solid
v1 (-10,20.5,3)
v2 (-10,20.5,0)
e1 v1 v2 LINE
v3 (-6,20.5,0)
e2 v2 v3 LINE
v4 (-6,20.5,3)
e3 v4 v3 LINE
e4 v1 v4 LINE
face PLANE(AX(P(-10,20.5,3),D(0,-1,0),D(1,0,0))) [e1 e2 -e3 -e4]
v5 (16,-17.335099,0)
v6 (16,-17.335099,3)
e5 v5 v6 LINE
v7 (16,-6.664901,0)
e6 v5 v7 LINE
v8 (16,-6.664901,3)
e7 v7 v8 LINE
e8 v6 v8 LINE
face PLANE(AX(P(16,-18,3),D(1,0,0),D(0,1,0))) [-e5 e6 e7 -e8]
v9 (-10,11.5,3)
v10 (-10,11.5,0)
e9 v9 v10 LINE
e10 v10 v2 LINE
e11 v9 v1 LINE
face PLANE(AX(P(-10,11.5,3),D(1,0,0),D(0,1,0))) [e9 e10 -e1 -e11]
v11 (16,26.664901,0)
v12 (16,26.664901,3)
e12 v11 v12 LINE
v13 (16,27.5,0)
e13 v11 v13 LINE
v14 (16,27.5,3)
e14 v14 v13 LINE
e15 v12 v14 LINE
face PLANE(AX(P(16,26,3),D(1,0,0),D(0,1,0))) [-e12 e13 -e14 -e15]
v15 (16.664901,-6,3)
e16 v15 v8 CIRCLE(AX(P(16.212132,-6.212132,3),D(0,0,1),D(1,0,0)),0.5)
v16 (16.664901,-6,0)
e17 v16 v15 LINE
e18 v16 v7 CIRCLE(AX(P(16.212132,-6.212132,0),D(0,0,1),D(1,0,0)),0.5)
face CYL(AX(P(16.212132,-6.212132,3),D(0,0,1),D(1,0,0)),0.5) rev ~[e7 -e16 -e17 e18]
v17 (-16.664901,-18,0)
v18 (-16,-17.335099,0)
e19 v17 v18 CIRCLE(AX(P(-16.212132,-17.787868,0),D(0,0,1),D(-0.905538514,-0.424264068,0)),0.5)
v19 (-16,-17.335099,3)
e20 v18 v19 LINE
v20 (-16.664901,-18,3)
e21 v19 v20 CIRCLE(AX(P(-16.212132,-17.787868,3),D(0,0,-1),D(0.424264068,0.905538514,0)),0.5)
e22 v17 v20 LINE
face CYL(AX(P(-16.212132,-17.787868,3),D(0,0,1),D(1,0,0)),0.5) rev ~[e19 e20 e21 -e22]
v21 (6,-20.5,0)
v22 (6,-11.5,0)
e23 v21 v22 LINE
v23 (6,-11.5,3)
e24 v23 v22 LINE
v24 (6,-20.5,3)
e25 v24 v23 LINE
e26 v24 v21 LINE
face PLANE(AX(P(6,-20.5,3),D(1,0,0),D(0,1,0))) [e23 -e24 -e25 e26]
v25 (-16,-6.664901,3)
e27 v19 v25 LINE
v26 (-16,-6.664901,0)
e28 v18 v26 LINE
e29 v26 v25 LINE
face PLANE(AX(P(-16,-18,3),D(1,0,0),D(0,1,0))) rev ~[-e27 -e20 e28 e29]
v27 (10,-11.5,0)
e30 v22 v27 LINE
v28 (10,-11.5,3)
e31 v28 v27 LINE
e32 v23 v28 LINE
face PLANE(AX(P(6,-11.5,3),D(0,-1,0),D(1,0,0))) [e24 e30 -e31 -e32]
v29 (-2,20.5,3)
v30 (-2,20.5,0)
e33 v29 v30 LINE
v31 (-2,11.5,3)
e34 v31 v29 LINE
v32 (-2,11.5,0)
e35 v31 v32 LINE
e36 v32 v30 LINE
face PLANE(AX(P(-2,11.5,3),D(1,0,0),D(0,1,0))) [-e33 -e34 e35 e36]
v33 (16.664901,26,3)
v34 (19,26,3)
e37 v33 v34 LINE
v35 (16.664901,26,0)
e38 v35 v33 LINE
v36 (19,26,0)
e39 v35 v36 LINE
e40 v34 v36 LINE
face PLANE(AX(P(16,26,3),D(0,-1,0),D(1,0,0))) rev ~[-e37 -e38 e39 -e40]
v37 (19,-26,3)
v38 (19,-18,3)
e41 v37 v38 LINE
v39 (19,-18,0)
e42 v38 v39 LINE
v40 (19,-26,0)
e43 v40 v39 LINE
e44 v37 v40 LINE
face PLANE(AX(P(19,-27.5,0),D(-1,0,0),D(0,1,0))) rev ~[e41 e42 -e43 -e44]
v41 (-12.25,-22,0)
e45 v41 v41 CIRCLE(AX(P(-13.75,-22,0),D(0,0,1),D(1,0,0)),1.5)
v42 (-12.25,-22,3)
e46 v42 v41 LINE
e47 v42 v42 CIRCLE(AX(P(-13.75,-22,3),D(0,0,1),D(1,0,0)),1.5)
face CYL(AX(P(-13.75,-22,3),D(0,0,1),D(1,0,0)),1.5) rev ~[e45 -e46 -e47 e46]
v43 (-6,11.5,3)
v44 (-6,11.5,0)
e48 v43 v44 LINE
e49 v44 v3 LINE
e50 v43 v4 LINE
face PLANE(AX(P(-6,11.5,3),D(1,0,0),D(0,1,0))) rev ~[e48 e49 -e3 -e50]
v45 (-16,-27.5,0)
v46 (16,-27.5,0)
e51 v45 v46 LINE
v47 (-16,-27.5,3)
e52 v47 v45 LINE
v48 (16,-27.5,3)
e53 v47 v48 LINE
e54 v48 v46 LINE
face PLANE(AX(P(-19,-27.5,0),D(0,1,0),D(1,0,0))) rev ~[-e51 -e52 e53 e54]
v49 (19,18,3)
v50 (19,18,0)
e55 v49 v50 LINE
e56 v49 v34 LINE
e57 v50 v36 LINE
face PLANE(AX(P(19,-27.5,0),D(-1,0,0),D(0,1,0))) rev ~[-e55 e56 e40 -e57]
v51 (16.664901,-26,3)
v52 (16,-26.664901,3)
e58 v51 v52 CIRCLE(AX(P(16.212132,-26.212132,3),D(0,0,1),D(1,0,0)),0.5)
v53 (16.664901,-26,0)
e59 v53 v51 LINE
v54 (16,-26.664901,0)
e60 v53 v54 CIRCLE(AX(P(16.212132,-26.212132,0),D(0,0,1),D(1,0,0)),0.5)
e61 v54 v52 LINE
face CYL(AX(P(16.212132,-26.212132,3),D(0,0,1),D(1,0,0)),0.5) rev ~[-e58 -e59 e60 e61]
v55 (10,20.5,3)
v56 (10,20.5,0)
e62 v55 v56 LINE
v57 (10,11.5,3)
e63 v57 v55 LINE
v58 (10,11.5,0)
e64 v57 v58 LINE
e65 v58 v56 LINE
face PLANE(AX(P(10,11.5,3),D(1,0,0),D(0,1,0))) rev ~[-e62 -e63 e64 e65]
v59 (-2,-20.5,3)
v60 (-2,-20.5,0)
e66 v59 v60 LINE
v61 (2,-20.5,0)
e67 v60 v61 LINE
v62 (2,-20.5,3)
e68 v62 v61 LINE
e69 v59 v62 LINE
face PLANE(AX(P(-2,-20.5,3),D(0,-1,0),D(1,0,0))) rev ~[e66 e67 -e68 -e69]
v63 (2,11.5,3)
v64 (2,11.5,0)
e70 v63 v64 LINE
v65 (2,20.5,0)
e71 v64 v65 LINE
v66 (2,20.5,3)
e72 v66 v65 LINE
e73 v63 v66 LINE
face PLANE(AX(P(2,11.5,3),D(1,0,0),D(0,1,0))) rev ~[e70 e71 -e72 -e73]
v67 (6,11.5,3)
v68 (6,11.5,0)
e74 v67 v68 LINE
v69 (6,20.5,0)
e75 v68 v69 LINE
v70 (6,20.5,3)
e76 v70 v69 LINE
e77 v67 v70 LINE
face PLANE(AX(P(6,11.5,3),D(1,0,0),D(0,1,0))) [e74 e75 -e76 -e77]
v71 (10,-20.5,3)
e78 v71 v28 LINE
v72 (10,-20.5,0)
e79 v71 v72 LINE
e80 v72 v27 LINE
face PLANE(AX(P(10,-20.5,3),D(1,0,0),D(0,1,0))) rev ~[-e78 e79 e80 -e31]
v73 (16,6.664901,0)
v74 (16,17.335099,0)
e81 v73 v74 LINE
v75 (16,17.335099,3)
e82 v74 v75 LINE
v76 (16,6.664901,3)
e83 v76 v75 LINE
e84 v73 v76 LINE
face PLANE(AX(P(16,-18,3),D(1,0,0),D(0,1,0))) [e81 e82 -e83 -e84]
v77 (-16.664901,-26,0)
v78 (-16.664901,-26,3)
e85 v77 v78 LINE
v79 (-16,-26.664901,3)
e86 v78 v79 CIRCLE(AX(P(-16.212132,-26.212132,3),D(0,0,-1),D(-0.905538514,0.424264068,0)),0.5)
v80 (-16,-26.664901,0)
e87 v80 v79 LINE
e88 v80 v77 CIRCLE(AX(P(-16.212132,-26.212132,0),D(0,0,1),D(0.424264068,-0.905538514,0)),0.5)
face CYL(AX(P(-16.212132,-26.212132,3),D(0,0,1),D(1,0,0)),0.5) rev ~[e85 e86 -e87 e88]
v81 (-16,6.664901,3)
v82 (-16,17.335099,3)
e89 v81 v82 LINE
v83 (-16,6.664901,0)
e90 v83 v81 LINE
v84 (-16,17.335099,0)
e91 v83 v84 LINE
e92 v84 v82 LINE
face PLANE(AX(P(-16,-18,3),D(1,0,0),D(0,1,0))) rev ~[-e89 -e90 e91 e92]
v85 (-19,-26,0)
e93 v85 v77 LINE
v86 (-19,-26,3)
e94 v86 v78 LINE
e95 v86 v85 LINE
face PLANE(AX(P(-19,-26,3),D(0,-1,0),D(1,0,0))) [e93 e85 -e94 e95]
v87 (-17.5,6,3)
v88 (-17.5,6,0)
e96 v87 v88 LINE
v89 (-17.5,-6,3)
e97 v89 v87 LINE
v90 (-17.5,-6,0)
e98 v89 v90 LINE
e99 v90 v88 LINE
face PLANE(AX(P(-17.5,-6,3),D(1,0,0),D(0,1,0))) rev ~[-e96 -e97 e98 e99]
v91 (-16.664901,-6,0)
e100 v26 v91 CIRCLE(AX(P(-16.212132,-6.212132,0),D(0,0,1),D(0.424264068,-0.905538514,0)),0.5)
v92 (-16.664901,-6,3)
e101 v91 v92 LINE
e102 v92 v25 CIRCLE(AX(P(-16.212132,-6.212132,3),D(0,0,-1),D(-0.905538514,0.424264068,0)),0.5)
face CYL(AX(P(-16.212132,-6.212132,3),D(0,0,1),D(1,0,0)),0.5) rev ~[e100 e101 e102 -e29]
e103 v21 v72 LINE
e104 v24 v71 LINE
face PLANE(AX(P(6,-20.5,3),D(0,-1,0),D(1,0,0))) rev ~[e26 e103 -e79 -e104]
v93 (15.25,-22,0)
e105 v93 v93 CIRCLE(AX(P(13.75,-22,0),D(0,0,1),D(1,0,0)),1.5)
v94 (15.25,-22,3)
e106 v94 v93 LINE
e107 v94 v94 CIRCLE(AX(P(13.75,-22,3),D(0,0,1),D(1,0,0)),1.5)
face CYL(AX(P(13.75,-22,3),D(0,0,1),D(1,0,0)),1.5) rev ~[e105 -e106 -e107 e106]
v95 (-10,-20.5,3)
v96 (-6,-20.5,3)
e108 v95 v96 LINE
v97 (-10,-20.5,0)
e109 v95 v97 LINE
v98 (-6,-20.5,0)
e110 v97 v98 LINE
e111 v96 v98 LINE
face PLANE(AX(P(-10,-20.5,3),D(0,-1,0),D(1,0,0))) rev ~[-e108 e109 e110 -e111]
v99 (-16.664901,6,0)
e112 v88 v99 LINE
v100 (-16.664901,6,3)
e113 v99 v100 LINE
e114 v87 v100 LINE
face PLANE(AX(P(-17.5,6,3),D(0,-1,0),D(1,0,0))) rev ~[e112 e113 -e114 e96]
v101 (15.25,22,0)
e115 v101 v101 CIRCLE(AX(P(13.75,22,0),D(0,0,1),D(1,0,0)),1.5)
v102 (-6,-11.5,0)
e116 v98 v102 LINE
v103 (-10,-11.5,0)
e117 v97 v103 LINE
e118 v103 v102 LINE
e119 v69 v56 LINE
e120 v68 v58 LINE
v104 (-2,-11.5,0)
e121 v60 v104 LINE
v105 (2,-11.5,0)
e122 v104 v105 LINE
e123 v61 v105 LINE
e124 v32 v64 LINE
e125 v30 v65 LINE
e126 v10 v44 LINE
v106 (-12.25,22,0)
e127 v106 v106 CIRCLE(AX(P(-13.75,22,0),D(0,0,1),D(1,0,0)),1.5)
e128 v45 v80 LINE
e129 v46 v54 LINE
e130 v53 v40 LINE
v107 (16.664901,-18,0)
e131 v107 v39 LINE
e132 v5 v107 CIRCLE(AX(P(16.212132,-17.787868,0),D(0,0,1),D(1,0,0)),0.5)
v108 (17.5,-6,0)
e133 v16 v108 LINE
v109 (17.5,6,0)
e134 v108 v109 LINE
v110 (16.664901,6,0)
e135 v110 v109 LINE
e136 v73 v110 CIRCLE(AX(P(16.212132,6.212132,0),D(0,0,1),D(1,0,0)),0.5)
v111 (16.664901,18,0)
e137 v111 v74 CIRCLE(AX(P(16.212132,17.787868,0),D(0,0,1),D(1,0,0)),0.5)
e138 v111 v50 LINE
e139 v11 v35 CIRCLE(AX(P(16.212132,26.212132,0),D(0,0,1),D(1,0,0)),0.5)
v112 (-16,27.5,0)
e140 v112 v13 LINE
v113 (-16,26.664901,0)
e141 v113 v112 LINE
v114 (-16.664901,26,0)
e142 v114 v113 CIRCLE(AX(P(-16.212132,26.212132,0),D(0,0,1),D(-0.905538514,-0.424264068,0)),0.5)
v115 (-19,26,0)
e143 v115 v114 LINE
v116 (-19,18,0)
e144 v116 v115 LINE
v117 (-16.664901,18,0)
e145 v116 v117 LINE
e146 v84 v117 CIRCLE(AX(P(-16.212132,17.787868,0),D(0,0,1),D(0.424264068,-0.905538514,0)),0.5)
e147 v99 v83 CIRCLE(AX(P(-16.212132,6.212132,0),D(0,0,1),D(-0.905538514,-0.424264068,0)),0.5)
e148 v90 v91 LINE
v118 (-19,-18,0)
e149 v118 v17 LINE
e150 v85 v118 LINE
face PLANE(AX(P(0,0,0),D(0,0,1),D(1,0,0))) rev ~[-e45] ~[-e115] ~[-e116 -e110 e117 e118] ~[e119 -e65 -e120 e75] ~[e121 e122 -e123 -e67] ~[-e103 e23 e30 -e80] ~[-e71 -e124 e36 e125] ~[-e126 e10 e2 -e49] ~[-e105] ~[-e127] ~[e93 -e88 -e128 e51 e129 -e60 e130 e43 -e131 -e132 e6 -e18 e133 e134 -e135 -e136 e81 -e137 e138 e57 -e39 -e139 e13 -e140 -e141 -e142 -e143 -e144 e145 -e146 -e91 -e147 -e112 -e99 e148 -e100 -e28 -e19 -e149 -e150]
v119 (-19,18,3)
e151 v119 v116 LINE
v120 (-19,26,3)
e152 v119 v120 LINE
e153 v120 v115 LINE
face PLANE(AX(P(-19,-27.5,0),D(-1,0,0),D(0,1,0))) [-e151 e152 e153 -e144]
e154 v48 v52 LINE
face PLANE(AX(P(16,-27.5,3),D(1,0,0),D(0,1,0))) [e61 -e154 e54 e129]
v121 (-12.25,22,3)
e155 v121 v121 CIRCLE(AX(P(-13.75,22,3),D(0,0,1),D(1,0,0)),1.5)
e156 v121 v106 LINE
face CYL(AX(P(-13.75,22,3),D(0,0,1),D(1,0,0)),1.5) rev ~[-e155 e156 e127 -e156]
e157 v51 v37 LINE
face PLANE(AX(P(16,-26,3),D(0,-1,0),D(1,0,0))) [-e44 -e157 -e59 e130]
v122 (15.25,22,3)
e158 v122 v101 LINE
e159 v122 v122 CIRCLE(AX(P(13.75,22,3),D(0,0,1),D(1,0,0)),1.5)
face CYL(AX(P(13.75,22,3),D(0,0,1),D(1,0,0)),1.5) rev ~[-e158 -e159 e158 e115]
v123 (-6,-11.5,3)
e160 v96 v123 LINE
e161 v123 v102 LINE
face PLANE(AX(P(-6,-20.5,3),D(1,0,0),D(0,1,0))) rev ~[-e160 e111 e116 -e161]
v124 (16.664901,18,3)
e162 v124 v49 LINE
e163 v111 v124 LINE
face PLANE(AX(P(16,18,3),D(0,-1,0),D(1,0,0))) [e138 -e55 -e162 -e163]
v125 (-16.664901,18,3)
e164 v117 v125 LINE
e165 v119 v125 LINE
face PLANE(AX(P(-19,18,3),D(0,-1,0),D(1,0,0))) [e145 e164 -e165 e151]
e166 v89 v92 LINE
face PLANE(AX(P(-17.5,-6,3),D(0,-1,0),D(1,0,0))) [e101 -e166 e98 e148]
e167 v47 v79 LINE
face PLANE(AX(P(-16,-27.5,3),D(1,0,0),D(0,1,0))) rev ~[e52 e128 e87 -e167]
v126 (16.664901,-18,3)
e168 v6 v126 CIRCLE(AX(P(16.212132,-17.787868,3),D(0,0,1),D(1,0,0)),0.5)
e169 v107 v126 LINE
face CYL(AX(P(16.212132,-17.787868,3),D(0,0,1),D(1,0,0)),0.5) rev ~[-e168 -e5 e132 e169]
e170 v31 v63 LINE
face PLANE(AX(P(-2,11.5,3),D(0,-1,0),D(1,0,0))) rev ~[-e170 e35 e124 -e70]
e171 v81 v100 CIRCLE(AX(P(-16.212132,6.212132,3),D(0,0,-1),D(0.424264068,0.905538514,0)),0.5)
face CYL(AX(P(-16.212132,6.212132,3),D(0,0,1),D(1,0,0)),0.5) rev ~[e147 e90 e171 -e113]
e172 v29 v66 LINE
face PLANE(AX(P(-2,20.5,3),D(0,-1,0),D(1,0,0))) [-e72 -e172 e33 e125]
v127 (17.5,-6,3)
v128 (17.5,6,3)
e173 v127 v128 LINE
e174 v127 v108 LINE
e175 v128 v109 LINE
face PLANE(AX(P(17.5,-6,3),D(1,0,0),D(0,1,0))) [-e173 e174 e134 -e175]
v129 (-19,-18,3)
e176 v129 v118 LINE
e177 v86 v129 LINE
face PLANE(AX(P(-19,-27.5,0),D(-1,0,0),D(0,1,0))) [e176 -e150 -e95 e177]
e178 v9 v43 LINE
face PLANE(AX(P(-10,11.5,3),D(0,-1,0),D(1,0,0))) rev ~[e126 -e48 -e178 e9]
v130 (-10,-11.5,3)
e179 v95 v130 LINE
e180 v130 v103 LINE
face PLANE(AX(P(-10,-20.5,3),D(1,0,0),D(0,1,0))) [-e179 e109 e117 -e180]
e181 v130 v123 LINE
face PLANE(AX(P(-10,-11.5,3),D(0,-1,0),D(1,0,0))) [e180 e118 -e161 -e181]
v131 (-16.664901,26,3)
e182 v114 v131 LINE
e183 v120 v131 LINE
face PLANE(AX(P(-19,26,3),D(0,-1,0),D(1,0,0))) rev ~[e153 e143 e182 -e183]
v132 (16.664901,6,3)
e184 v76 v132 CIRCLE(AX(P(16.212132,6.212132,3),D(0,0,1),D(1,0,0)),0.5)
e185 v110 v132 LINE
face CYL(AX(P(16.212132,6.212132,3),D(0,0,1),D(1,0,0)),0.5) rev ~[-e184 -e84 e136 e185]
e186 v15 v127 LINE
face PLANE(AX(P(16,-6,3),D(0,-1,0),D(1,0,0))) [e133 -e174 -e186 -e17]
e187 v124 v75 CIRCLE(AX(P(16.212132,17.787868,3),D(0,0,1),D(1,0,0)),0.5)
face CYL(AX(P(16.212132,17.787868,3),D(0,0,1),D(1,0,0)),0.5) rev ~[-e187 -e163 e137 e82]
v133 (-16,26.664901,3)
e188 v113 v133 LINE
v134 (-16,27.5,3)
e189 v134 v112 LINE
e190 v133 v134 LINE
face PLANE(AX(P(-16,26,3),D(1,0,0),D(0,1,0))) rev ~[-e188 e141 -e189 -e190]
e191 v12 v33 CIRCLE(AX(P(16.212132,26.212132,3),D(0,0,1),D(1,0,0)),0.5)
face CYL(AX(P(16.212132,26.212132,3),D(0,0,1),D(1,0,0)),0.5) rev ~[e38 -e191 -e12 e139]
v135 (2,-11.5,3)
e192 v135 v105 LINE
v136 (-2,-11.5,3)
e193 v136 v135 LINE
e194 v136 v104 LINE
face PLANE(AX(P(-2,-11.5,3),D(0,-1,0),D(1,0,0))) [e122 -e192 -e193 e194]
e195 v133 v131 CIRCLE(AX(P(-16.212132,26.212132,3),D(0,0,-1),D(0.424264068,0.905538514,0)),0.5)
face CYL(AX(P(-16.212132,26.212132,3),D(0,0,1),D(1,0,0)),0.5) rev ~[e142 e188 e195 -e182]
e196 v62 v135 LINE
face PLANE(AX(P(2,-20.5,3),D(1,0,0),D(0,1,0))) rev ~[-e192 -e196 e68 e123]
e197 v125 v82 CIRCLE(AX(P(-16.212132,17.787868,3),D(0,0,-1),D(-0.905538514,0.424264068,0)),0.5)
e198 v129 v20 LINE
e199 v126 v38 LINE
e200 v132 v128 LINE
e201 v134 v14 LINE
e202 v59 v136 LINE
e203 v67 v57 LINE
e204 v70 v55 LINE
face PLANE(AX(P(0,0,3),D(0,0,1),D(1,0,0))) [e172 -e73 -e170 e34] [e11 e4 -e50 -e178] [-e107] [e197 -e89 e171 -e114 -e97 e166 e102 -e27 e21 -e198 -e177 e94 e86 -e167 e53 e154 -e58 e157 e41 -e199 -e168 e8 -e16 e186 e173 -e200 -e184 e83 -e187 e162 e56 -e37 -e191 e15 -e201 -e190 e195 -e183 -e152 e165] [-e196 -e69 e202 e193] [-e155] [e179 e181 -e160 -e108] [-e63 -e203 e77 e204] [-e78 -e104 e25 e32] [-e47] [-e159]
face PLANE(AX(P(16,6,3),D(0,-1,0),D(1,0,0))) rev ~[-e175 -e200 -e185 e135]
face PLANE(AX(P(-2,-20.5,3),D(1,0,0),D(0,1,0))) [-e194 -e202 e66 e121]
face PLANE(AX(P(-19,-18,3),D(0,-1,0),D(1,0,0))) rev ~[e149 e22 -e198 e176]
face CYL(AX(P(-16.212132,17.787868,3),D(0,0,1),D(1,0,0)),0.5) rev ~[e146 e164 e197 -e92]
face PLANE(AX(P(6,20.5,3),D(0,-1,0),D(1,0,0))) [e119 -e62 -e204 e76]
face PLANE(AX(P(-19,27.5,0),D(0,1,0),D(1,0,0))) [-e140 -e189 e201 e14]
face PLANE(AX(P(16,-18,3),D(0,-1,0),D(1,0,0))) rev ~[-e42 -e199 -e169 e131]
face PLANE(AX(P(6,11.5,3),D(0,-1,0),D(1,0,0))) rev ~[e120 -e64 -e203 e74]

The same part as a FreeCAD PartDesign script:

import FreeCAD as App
import Part
import Sketcher
Q = App.Units.Quantity

doc = App.newDocument("Part")
body = doc.addObject("PartDesign::Body", "Body")

# Sketch on XY plane
sketch1 = doc.addObject("Sketcher::SketchObject", "Sketch")
body.addObject(sketch1)
sketch1.AttachmentSupport = (doc.XY_Plane, [""])
sketch1.MapMode = "FlatFace"
sketch1.addGeometry(Part.LineSegment(App.Vector(-19, 27.5, 0), App.Vector(-19, -27.5, 0)), False)
sketch1.addGeometry(Part.LineSegment(App.Vector(-19, -27.5, 0), App.Vector(19, -27.5, 0)), False)
sketch1.addGeometry(Part.LineSegment(App.Vector(19, -27.5, 0), App.Vector(19, 27.5, 0)), False)
sketch1.addGeometry(Part.LineSegment(App.Vector(19, 27.5, 0), App.Vector(-19, 27.5, 0)), False)
sketch1.addConstraint(Sketcher.Constraint("Coincident", 0, 2, 1, 1))
sketch1.addConstraint(Sketcher.Constraint("Coincident", 1, 2, 2, 1))
sketch1.addConstraint(Sketcher.Constraint("Coincident", 2, 2, 3, 1))
sketch1.addConstraint(Sketcher.Constraint("Coincident", 3, 2, 0, 1))
sketch1.addConstraint(Sketcher.Constraint("Vertical", 0))
sketch1.addConstraint(Sketcher.Constraint("Horizontal", 1))
sketch1.addConstraint(Sketcher.Constraint("Vertical", 2))
sketch1.addConstraint(Sketcher.Constraint("Horizontal", 3))
sketch1.addConstraint(Sketcher.Constraint("Symmetric", 0, 2, 2, 2, -1, 1))
sketch1.addConstraint(Sketcher.Constraint("DistanceX", 1, 1, 1, 2, Q("38 mm")))
sketch1.addConstraint(Sketcher.Constraint("DistanceY", 0, 2, 0, 1, Q("55 mm")))
pad1 = doc.addObject("PartDesign::Pad", "Pad")
body.addObject(pad1)
pad1.Profile = sketch1
pad1.Length = 3

# Sketch on XY plane
sketch2 = doc.addObject("Sketcher::SketchObject", "Sketch001")
body.addObject(sketch2)
sketch2.AttachmentSupport = (doc.XY_Plane, [""])
sketch2.MapMode = "FlatFace"
sketch2.AttachmentOffset = App.Placement(App.Vector(0, 0, 3), App.Rotation())
sketch2.addGeometry(Part.LineSegment(App.Vector(-19, 18, 0), App.Vector(-19, -18, 0)), False)
sketch2.addGeometry(Part.LineSegment(App.Vector(-19, -18, 0), App.Vector(-16, -18, 0)), False)
sketch2.addGeometry(Part.LineSegment(App.Vector(-16, -18, 0), App.Vector(-16, 18, 0)), False)
sketch2.addGeometry(Part.LineSegment(App.Vector(-16, 18, 0), App.Vector(-19, 18, 0)), False)
sketch2.addGeometry(Part.LineSegment(App.Vector(-19, 27.5, 0), App.Vector(-19, 26, 0)), False)
sketch2.addGeometry(Part.LineSegment(App.Vector(-19, 26, 0), App.Vector(-16, 26, 0)), False)
sketch2.addGeometry(Part.LineSegment(App.Vector(-16, 26, 0), App.Vector(-16, 27.5, 0)), False)
sketch2.addGeometry(Part.LineSegment(App.Vector(-16, 27.5, 0), App.Vector(-19, 27.5, 0)), False)
sketch2.addGeometry(Part.LineSegment(App.Vector(16, -26, 0), App.Vector(16, -27.5, 0)), False)
sketch2.addGeometry(Part.LineSegment(App.Vector(16, -27.5, 0), App.Vector(19, -27.5, 0)), False)
sketch2.addGeometry(Part.LineSegment(App.Vector(19, -27.5, 0), App.Vector(19, -26, 0)), False)
sketch2.addGeometry(Part.LineSegment(App.Vector(19, -26, 0), App.Vector(16, -26, 0)), False)
sketch2.addGeometry(Part.LineSegment(App.Vector(16, 18, 0), App.Vector(16, -18, 0)), False)
sketch2.addGeometry(Part.LineSegment(App.Vector(16, -18, 0), App.Vector(19, -18, 0)), False)
sketch2.addGeometry(Part.LineSegment(App.Vector(19, -18, 0), App.Vector(19, 18, 0)), False)
sketch2.addGeometry(Part.LineSegment(App.Vector(19, 18, 0), App.Vector(16, 18, 0)), False)
sketch2.addGeometry(Part.LineSegment(App.Vector(16, 27.5, 0), App.Vector(16, 26, 0)), False)
sketch2.addGeometry(Part.LineSegment(App.Vector(16, 26, 0), App.Vector(19, 26, 0)), False)
sketch2.addGeometry(Part.LineSegment(App.Vector(19, 26, 0), App.Vector(19, 27.5, 0)), False)
sketch2.addGeometry(Part.LineSegment(App.Vector(19, 27.5, 0), App.Vector(16, 27.5, 0)), False)
sketch2.addGeometry(Part.LineSegment(App.Vector(-19, -26, 0), App.Vector(-19, -27.5, 0)), False)
sketch2.addGeometry(Part.LineSegment(App.Vector(-19, -27.5, 0), App.Vector(-16, -27.5, 0)), False)
sketch2.addGeometry(Part.LineSegment(App.Vector(-16, -27.5, 0), App.Vector(-16, -26, 0)), False)
sketch2.addGeometry(Part.LineSegment(App.Vector(-16, -26, 0), App.Vector(-19, -26, 0)), False)
sketch2.addConstraint(Sketcher.Constraint("Coincident", 0, 2, 1, 1))
sketch2.addConstraint(Sketcher.Constraint("Coincident", 1, 2, 2, 1))
sketch2.addConstraint(Sketcher.Constraint("Coincident", 2, 2, 3, 1))
sketch2.addConstraint(Sketcher.Constraint("Coincident", 3, 2, 0, 1))
sketch2.addConstraint(Sketcher.Constraint("Coincident", 4, 2, 5, 1))
sketch2.addConstraint(Sketcher.Constraint("Coincident", 5, 2, 6, 1))
sketch2.addConstraint(Sketcher.Constraint("Coincident", 6, 2, 7, 1))
sketch2.addConstraint(Sketcher.Constraint("Coincident", 7, 2, 4, 1))
sketch2.addConstraint(Sketcher.Constraint("Coincident", 8, 2, 9, 1))
sketch2.addConstraint(Sketcher.Constraint("Coincident", 9, 2, 10, 1))
sketch2.addConstraint(Sketcher.Constraint("Coincident", 10, 2, 11, 1))
sketch2.addConstraint(Sketcher.Constraint("Coincident", 11, 2, 8, 1))
sketch2.addConstraint(Sketcher.Constraint("Coincident", 12, 2, 13, 1))
sketch2.addConstraint(Sketcher.Constraint("Coincident", 13, 2, 14, 1))
sketch2.addConstraint(Sketcher.Constraint("Coincident", 14, 2, 15, 1))
sketch2.addConstraint(Sketcher.Constraint("Coincident", 15, 2, 12, 1))
sketch2.addConstraint(Sketcher.Constraint("Coincident", 16, 2, 17, 1))
sketch2.addConstraint(Sketcher.Constraint("Coincident", 17, 2, 18, 1))
sketch2.addConstraint(Sketcher.Constraint("Coincident", 18, 2, 19, 1))
sketch2.addConstraint(Sketcher.Constraint("Coincident", 19, 2, 16, 1))
sketch2.addConstraint(Sketcher.Constraint("Coincident", 20, 2, 21, 1))
sketch2.addConstraint(Sketcher.Constraint("Coincident", 21, 2, 22, 1))
sketch2.addConstraint(Sketcher.Constraint("Coincident", 22, 2, 23, 1))
sketch2.addConstraint(Sketcher.Constraint("Coincident", 23, 2, 20, 1))
sketch2.addConstraint(Sketcher.Constraint("Vertical", 0))
sketch2.addConstraint(Sketcher.Constraint("Horizontal", 1))
sketch2.addConstraint(Sketcher.Constraint("Vertical", 2))
sketch2.addConstraint(Sketcher.Constraint("Horizontal", 3))
sketch2.addConstraint(Sketcher.Constraint("Vertical", 4))
sketch2.addConstraint(Sketcher.Constraint("Horizontal", 5))
sketch2.addConstraint(Sketcher.Constraint("Vertical", 6))
sketch2.addConstraint(Sketcher.Constraint("Horizontal", 7))
sketch2.addConstraint(Sketcher.Constraint("Vertical", 8))
sketch2.addConstraint(Sketcher.Constraint("Horizontal", 9))
sketch2.addConstraint(Sketcher.Constraint("Vertical", 10))
sketch2.addConstraint(Sketcher.Constraint("Horizontal", 11))
sketch2.addConstraint(Sketcher.Constraint("Vertical", 12))
sketch2.addConstraint(Sketcher.Constraint("Horizontal", 13))
sketch2.addConstraint(Sketcher.Constraint("Vertical", 14))
sketch2.addConstraint(Sketcher.Constraint("Horizontal", 15))
sketch2.addConstraint(Sketcher.Constraint("Vertical", 16))
sketch2.addConstraint(Sketcher.Constraint("Horizontal", 17))
sketch2.addConstraint(Sketcher.Constraint("Vertical", 18))
sketch2.addConstraint(Sketcher.Constraint("Horizontal", 19))
sketch2.addConstraint(Sketcher.Constraint("Vertical", 20))
sketch2.addConstraint(Sketcher.Constraint("Horizontal", 21))
sketch2.addConstraint(Sketcher.Constraint("Vertical", 22))
sketch2.addConstraint(Sketcher.Constraint("Horizontal", 23))
sketch2.addConstraint(Sketcher.Constraint("Symmetric", 6, 2, 8, 2, -1, 1))
sketch2.addConstraint(Sketcher.Constraint("Symmetric", 4, 2, 10, 2, -1, 1))
sketch2.addConstraint(Sketcher.Constraint("Symmetric", 2, 2, 12, 2, -1, 1))
sketch2.addConstraint(Sketcher.Constraint("Symmetric", 0, 2, 14, 2, -1, 1))
sketch2.addConstraint(Sketcher.Constraint("Symmetric", 18, 2, 20, 2, -1, 1))
sketch2.addConstraint(Sketcher.Constraint("Symmetric", 16, 2, 22, 2, -1, 1))
sketch2.addConstraint(Sketcher.Constraint("Symmetric", 5, 2, 16, 2, -2))
sketch2.addConstraint(Sketcher.Constraint("Symmetric", 7, 2, 18, 2, -2))
sketch2.addConstraint(Sketcher.Constraint("Horizontal", 1, 2, 12, 2))
sketch2.addConstraint(Sketcher.Constraint("Vertical", 3, 2, 4, 2))
sketch2.addConstraint(Sketcher.Constraint("Vertical", 2, 2, 5, 2))
sketch2.addConstraint(Sketcher.Constraint("DistanceX", 1, 1, 1, 2, Q("3 mm")))
sketch2.addConstraint(Sketcher.Constraint("DistanceY", 0, 2, 0, 1, Q("36 mm")))
sketch2.addConstraint(Sketcher.Constraint("DistanceY", 4, 2, 4, 1, Q("1.5 mm")))
sketch2.addConstraint(Sketcher.Constraint("DistanceX", 0, 2, -1, 1, Q("19 mm")))
sketch2.addConstraint(Sketcher.Constraint("DistanceY", -1, 1, 4, 2, Q("26 mm")))
pocket1 = doc.addObject("PartDesign::Pocket", "Pocket")
body.addObject(pocket1)
pocket1.Profile = sketch2
pocket1.Length = 3

# Sketch on XY plane
sketch3 = doc.addObject("Sketcher::SketchObject", "Sketch002")
body.addObject(sketch3)
sketch3.AttachmentSupport = (doc.XY_Plane, [""])
sketch3.MapMode = "FlatFace"
sketch3.AttachmentOffset = App.Placement(App.Vector(0, 0, 3), App.Rotation())
sketch3.addGeometry(Part.Circle(App.Vector(-13.75, -22, 0), App.Vector(0, 0, 1), 1.5), False)
sketch3.addGeometry(Part.Circle(App.Vector(13.75, -22, 0), App.Vector(0, 0, 1), 1.5), False)
sketch3.addGeometry(Part.Circle(App.Vector(13.75, 22, 0), App.Vector(0, 0, 1), 1.5), False)
sketch3.addGeometry(Part.Circle(App.Vector(-13.75, 22, 0), App.Vector(0, 0, 1), 1.5), False)
sketch3.addConstraint(Sketcher.Constraint("Equal", 0, 1))
sketch3.addConstraint(Sketcher.Constraint("Equal", 1, 2))
sketch3.addConstraint(Sketcher.Constraint("Equal", 2, 3))
sketch3.addConstraint(Sketcher.Constraint("Symmetric", 0, 3, 2, 3, -1, 1))
sketch3.addConstraint(Sketcher.Constraint("Symmetric", 1, 3, 3, 3, -1, 1))
sketch3.addConstraint(Sketcher.Constraint("Symmetric", 0, 3, 1, 3, -2))
sketch3.addConstraint(Sketcher.Constraint("Diameter", 0, Q("3 mm")))
sketch3.addConstraint(Sketcher.Constraint("DistanceY", 0, 3, -1, 1, Q("22 mm")))
sketch3.addConstraint(Sketcher.Constraint("DistanceX", 0, 3, 1, 3, Q("27.5 mm")))
pocket2 = doc.addObject("PartDesign::Pocket", "Pocket001")
body.addObject(pocket2)
pocket2.Profile = sketch3
pocket2.Type = "ThroughAll"

# Sketch on XY plane
sketch4 = doc.addObject("Sketcher::SketchObject", "Sketch003")
body.addObject(sketch4)
sketch4.AttachmentSupport = (doc.XY_Plane, [""])
sketch4.MapMode = "FlatFace"
sketch4.AttachmentOffset = App.Placement(App.Vector(0, 0, 3), App.Rotation())
sketch4.addGeometry(Part.LineSegment(App.Vector(6, -11.5, 0), App.Vector(6, -20.5, 0)), False)
sketch4.addGeometry(Part.LineSegment(App.Vector(6, -20.5, 0), App.Vector(10, -20.5, 0)), False)
sketch4.addGeometry(Part.LineSegment(App.Vector(10, -20.5, 0), App.Vector(10, -11.5, 0)), False)
sketch4.addGeometry(Part.LineSegment(App.Vector(10, -11.5, 0), App.Vector(6, -11.5, 0)), False)
sketch4.addGeometry(Part.LineSegment(App.Vector(-2, -11.5, 0), App.Vector(-2, -20.5, 0)), False)
sketch4.addGeometry(Part.LineSegment(App.Vector(-2, -20.5, 0), App.Vector(2, -20.5, 0)), False)
sketch4.addGeometry(Part.LineSegment(App.Vector(2, -20.5, 0), App.Vector(2, -11.5, 0)), False)
sketch4.addGeometry(Part.LineSegment(App.Vector(2, -11.5, 0), App.Vector(-2, -11.5, 0)), False)
sketch4.addGeometry(Part.LineSegment(App.Vector(-10, -11.5, 0), App.Vector(-10, -20.5, 0)), False)
sketch4.addGeometry(Part.LineSegment(App.Vector(-10, -20.5, 0), App.Vector(-6, -20.5, 0)), False)
sketch4.addGeometry(Part.LineSegment(App.Vector(-6, -20.5, 0), App.Vector(-6, -11.5, 0)), False)
sketch4.addGeometry(Part.LineSegment(App.Vector(-6, -11.5, 0), App.Vector(-10, -11.5, 0)), False)
sketch4.addGeometry(Part.LineSegment(App.Vector(-10, 20.5, 0), App.Vector(-10, 11.5, 0)), False)
sketch4.addGeometry(Part.LineSegment(App.Vector(-10, 11.5, 0), App.Vector(-6, 11.5, 0)), False)
sketch4.addGeometry(Part.LineSegment(App.Vector(-6, 11.5, 0), App.Vector(-6, 20.5, 0)), False)
sketch4.addGeometry(Part.LineSegment(App.Vector(-6, 20.5, 0), App.Vector(-10, 20.5, 0)), False)
sketch4.addGeometry(Part.LineSegment(App.Vector(6, 20.5, 0), App.Vector(6, 11.5, 0)), False)
sketch4.addGeometry(Part.LineSegment(App.Vector(6, 11.5, 0), App.Vector(10, 11.5, 0)), False)
sketch4.addGeometry(Part.LineSegment(App.Vector(10, 11.5, 0), App.Vector(10, 20.5, 0)), False)
sketch4.addGeometry(Part.LineSegment(App.Vector(10, 20.5, 0), App.Vector(6, 20.5, 0)), False)
sketch4.addGeometry(Part.LineSegment(App.Vector(-2, 20.5, 0), App.Vector(-2, 11.5, 0)), False)
sketch4.addGeometry(Part.LineSegment(App.Vector(-2, 11.5, 0), App.Vector(2, 11.5, 0)), False)
sketch4.addGeometry(Part.LineSegment(App.Vector(2, 11.5, 0), App.Vector(2, 20.5, 0)), False)
sketch4.addGeometry(Part.LineSegment(App.Vector(2, 20.5, 0), App.Vector(-2, 20.5, 0)), False)
sketch4.addConstraint(Sketcher.Constraint("Coincident", 0, 2, 1, 1))
sketch4.addConstraint(Sketcher.Constraint("Coincident", 1, 2, 2, 1))
sketch4.addConstraint(Sketcher.Constraint("Coincident", 2, 2, 3, 1))
sketch4.addConstraint(Sketcher.Constraint("Coincident", 3, 2, 0, 1))
sketch4.addConstraint(Sketcher.Constraint("Coincident", 4, 2, 5, 1))
sketch4.addConstraint(Sketcher.Constraint("Coincident", 5, 2, 6, 1))
sketch4.addConstraint(Sketcher.Constraint("Coincident", 6, 2, 7, 1))
sketch4.addConstraint(Sketcher.Constraint("Coincident", 7, 2, 4, 1))
sketch4.addConstraint(Sketcher.Constraint("Coincident", 8, 2, 9, 1))
sketch4.addConstraint(Sketcher.Constraint("Coincident", 9, 2, 10, 1))
sketch4.addConstraint(Sketcher.Constraint("Coincident", 10, 2, 11, 1))
sketch4.addConstraint(Sketcher.Constraint("Coincident", 11, 2, 8, 1))
sketch4.addConstraint(Sketcher.Constraint("Coincident", 12, 2, 13, 1))
sketch4.addConstraint(Sketcher.Constraint("Coincident", 13, 2, 14, 1))
sketch4.addConstraint(Sketcher.Constraint("Coincident", 14, 2, 15, 1))
sketch4.addConstraint(Sketcher.Constraint("Coincident", 15, 2, 12, 1))
sketch4.addConstraint(Sketcher.Constraint("Coincident", 16, 2, 17, 1))
sketch4.addConstraint(Sketcher.Constraint("Coincident", 17, 2, 18, 1))
sketch4.addConstraint(Sketcher.Constraint("Coincident", 18, 2, 19, 1))
sketch4.addConstraint(Sketcher.Constraint("Coincident", 19, 2, 16, 1))
sketch4.addConstraint(Sketcher.Constraint("Coincident", 20, 2, 21, 1))
sketch4.addConstraint(Sketcher.Constraint("Coincident", 21, 2, 22, 1))
sketch4.addConstraint(Sketcher.Constraint("Coincident", 22, 2, 23, 1))
sketch4.addConstraint(Sketcher.Constraint("Coincident", 23, 2, 20, 1))
sketch4.addConstraint(Sketcher.Constraint("Vertical", 0))
sketch4.addConstraint(Sketcher.Constraint("Horizontal", 1))
sketch4.addConstraint(Sketcher.Constraint("Vertical", 2))
sketch4.addConstraint(Sketcher.Constraint("Horizontal", 3))
sketch4.addConstraint(Sketcher.Constraint("Vertical", 4))
sketch4.addConstraint(Sketcher.Constraint("Horizontal", 5))
sketch4.addConstraint(Sketcher.Constraint("Vertical", 6))
sketch4.addConstraint(Sketcher.Constraint("Horizontal", 7))
sketch4.addConstraint(Sketcher.Constraint("Vertical", 8))
sketch4.addConstraint(Sketcher.Constraint("Horizontal", 9))
sketch4.addConstraint(Sketcher.Constraint("Vertical", 10))
sketch4.addConstraint(Sketcher.Constraint("Horizontal", 11))
sketch4.addConstraint(Sketcher.Constraint("Vertical", 12))
sketch4.addConstraint(Sketcher.Constraint("Horizontal", 13))
sketch4.addConstraint(Sketcher.Constraint("Vertical", 14))
sketch4.addConstraint(Sketcher.Constraint("Horizontal", 15))
sketch4.addConstraint(Sketcher.Constraint("Vertical", 16))
sketch4.addConstraint(Sketcher.Constraint("Horizontal", 17))
sketch4.addConstraint(Sketcher.Constraint("Vertical", 18))
sketch4.addConstraint(Sketcher.Constraint("Horizontal", 19))
sketch4.addConstraint(Sketcher.Constraint("Vertical", 20))
sketch4.addConstraint(Sketcher.Constraint("Horizontal", 21))
sketch4.addConstraint(Sketcher.Constraint("Vertical", 22))
sketch4.addConstraint(Sketcher.Constraint("Horizontal", 23))
sketch4.addConstraint(Sketcher.Constraint("Symmetric", 2, 2, 12, 2, -1, 1))
sketch4.addConstraint(Sketcher.Constraint("Symmetric", 0, 2, 14, 2, -1, 1))
sketch4.addConstraint(Sketcher.Constraint("Symmetric", 10, 2, 16, 2, -1, 1))
sketch4.addConstraint(Sketcher.Constraint("Symmetric", 8, 2, 18, 2, -1, 1))
sketch4.addConstraint(Sketcher.Constraint("Symmetric", 6, 2, 20, 2, -1, 1))
sketch4.addConstraint(Sketcher.Constraint("Symmetric", 4, 2, 22, 2, -1, 1))
sketch4.addConstraint(Sketcher.Constraint("Symmetric", 1, 2, 8, 2, -2))
sketch4.addConstraint(Sketcher.Constraint("Symmetric", 3, 2, 10, 2, -2))
sketch4.addConstraint(Sketcher.Constraint("Horizontal", 1, 2, 4, 2))
sketch4.addConstraint(Sketcher.Constraint("Horizontal", 3, 2, 6, 2))
sketch4.addConstraint(Sketcher.Constraint("Vertical", 7, 2, 20, 2))
sketch4.addConstraint(Sketcher.Constraint("Equal", 3, 5))
sketch4.addConstraint(Sketcher.Constraint("DistanceX", 1, 1, 1, 2, Q("4 mm")))
sketch4.addConstraint(Sketcher.Constraint("DistanceY", 0, 2, 0, 1, Q("9 mm")))
sketch4.addConstraint(Sketcher.Constraint("DistanceX", -1, 1, 0, 2, Q("6 mm")))
sketch4.addConstraint(Sketcher.Constraint("DistanceY", 11, 2, 12, 2, Q("23 mm")))
pocket3 = doc.addObject("PartDesign::Pocket", "Pocket002")
body.addObject(pocket3)
pocket3.Profile = sketch4
pocket3.Length = 10

# Sketch on XY plane
sketch5 = doc.addObject("Sketcher::SketchObject", "Sketch004")
body.addObject(sketch5)
sketch5.AttachmentSupport = (doc.XY_Plane, [""])
sketch5.MapMode = "FlatFace"
sketch5.AttachmentOffset = App.Placement(App.Vector(0, 0, 3), App.Rotation())
sketch5.addGeometry(Part.LineSegment(App.Vector(-17.5, 6, 0), App.Vector(-17.5, -6, 0)), False)
sketch5.addGeometry(Part.LineSegment(App.Vector(-17.5, -6, 0), App.Vector(-16, -6, 0)), False)
sketch5.addGeometry(Part.LineSegment(App.Vector(-16, -6, 0), App.Vector(-16, 6, 0)), False)
sketch5.addGeometry(Part.LineSegment(App.Vector(-16, 6, 0), App.Vector(-17.5, 6, 0)), False)
sketch5.addGeometry(Part.LineSegment(App.Vector(16, 6, 0), App.Vector(16, -6, 0)), False)
sketch5.addGeometry(Part.LineSegment(App.Vector(16, -6, 0), App.Vector(17.5, -6, 0)), False)
sketch5.addGeometry(Part.LineSegment(App.Vector(17.5, -6, 0), App.Vector(17.5, 6, 0)), False)
sketch5.addGeometry(Part.LineSegment(App.Vector(17.5, 6, 0), App.Vector(16, 6, 0)), False)
sketch5.addConstraint(Sketcher.Constraint("Coincident", 0, 2, 1, 1))
sketch5.addConstraint(Sketcher.Constraint("Coincident", 1, 2, 2, 1))
sketch5.addConstraint(Sketcher.Constraint("Coincident", 2, 2, 3, 1))
sketch5.addConstraint(Sketcher.Constraint("Coincident", 3, 2, 0, 1))
sketch5.addConstraint(Sketcher.Constraint("Coincident", 4, 2, 5, 1))
sketch5.addConstraint(Sketcher.Constraint("Coincident", 5, 2, 6, 1))
sketch5.addConstraint(Sketcher.Constraint("Coincident", 6, 2, 7, 1))
sketch5.addConstraint(Sketcher.Constraint("Coincident", 7, 2, 4, 1))
sketch5.addConstraint(Sketcher.Constraint("Vertical", 0))
sketch5.addConstraint(Sketcher.Constraint("Horizontal", 1))
sketch5.addConstraint(Sketcher.Constraint("Vertical", 2))
sketch5.addConstraint(Sketcher.Constraint("Horizontal", 3))
sketch5.addConstraint(Sketcher.Constraint("Vertical", 4))
sketch5.addConstraint(Sketcher.Constraint("Horizontal", 5))
sketch5.addConstraint(Sketcher.Constraint("Vertical", 6))
sketch5.addConstraint(Sketcher.Constraint("Horizontal", 7))
sketch5.addConstraint(Sketcher.Constraint("Symmetric", 2, 2, 4, 2, -1, 1))
sketch5.addConstraint(Sketcher.Constraint("Symmetric", 0, 2, 6, 2, -1, 1))
sketch5.addConstraint(Sketcher.Constraint("Horizontal", 1, 2, 4, 2))
sketch5.addConstraint(Sketcher.Constraint("DistanceY", 0, 2, 0, 1, Q("12 mm")))
sketch5.addConstraint(Sketcher.Constraint("DistanceX", 1, 1, 1, 2, Q("1.5 mm")))
sketch5.addConstraint(Sketcher.Constraint("DistanceX", 1, 2, -1, 1, Q("16 mm")))
pad2 = doc.addObject("PartDesign::Pad", "Pad001")
body.addObject(pad2)
pad2.Profile = sketch5
pad2.Type = "UpToLast"
pad2.Reversed = True

# Sketch on XY plane
sketch6 = doc.addObject("Sketcher::SketchObject", "Sketch005")
body.addObject(sketch6)
sketch6.AttachmentSupport = (doc.XY_Plane, [""])
sketch6.MapMode = "FlatFace"
sketch6.AttachmentOffset = App.Placement(App.Vector(0, 0, 3), App.Rotation())
sketch6.addGeometry(Part.Circle(App.Vector(-16.212132, -26.212132, 0), App.Vector(0, 0, 1), 0.5), False)
sketch6.addGeometry(Part.Circle(App.Vector(-16.212132, -17.787868, 0), App.Vector(0, 0, 1), 0.5), False)
sketch6.addGeometry(Part.Circle(App.Vector(-16.212132, -6.212132, 0), App.Vector(0, 0, 1), 0.5), False)
sketch6.addGeometry(Part.Circle(App.Vector(16.212132, -6.212132, 0), App.Vector(0, 0, 1), 0.5), False)
sketch6.addGeometry(Part.Circle(App.Vector(16.212132, -17.787868, 0), App.Vector(0, 0, 1), 0.5), False)
sketch6.addGeometry(Part.Circle(App.Vector(16.212132, -26.212132, 0), App.Vector(0, 0, 1), 0.5), False)
sketch6.addGeometry(Part.Circle(App.Vector(16.212132, 26.212132, 0), App.Vector(0, 0, 1), 0.5), False)
sketch6.addGeometry(Part.Circle(App.Vector(16.212132, 17.787868, 0), App.Vector(0, 0, 1), 0.5), False)
sketch6.addGeometry(Part.Circle(App.Vector(16.212132, 6.212132, 0), App.Vector(0, 0, 1), 0.5), False)
sketch6.addGeometry(Part.Circle(App.Vector(-16.212132, 6.212132, 0), App.Vector(0, 0, 1), 0.5), False)
sketch6.addGeometry(Part.Circle(App.Vector(-16.212132, 17.787868, 0), App.Vector(0, 0, 1), 0.5), False)
sketch6.addGeometry(Part.Circle(App.Vector(-16.212132, 26.212132, 0), App.Vector(0, 0, 1), 0.5), False)
sketch6.addConstraint(Sketcher.Constraint("Equal", 0, 1))
sketch6.addConstraint(Sketcher.Constraint("Equal", 1, 2))
sketch6.addConstraint(Sketcher.Constraint("Equal", 2, 3))
sketch6.addConstraint(Sketcher.Constraint("Equal", 3, 4))
sketch6.addConstraint(Sketcher.Constraint("Equal", 4, 5))
sketch6.addConstraint(Sketcher.Constraint("Equal", 5, 6))
sketch6.addConstraint(Sketcher.Constraint("Equal", 6, 7))
sketch6.addConstraint(Sketcher.Constraint("Equal", 7, 8))
sketch6.addConstraint(Sketcher.Constraint("Equal", 8, 9))
sketch6.addConstraint(Sketcher.Constraint("Equal", 9, 10))
sketch6.addConstraint(Sketcher.Constraint("Equal", 10, 11))
sketch6.addConstraint(Sketcher.Constraint("Symmetric", 0, 3, 6, 3, -1, 1))
sketch6.addConstraint(Sketcher.Constraint("Symmetric", 1, 3, 7, 3, -1, 1))
sketch6.addConstraint(Sketcher.Constraint("Symmetric", 2, 3, 8, 3, -1, 1))
sketch6.addConstraint(Sketcher.Constraint("Symmetric", 3, 3, 9, 3, -1, 1))
sketch6.addConstraint(Sketcher.Constraint("Symmetric", 4, 3, 10, 3, -1, 1))
sketch6.addConstraint(Sketcher.Constraint("Symmetric", 5, 3, 11, 3, -1, 1))
sketch6.addConstraint(Sketcher.Constraint("Symmetric", 2, 3, 3, 3, -2))
sketch6.addConstraint(Sketcher.Constraint("Symmetric", 1, 3, 4, 3, -2))
sketch6.addConstraint(Sketcher.Constraint("Symmetric", 0, 3, 5, 3, -2))
sketch6.addConstraint(Sketcher.Constraint("Vertical", 0, 3, 1, 3))
sketch6.addConstraint(Sketcher.Constraint("Vertical", 1, 3, 2, 3))
sketch6.addConstraint(Sketcher.Constraint("Diameter", 0, Q("1 mm")))
sketch6.addConstraint(Sketcher.Constraint("DistanceY", 0, 3, 2, 3, Q("20 mm")))
sketch6.addConstraint(Sketcher.Constraint("DistanceY", 4, 3, 6, 3, Q("44 mm")))
sketch6.addConstraint(Sketcher.Constraint("DistanceX", 0, 3, -1, 1, Q("16.212132 mm")))
sketch6.addConstraint(Sketcher.Constraint("DistanceY", 0, 3, -1, 1, Q("26.212132 mm")))
pocket4 = doc.addObject("PartDesign::Pocket", "Pocket003")
body.addObject(pocket4)
pocket4.Profile = sketch6
pocket4.Length = 10

doc.recompute()
